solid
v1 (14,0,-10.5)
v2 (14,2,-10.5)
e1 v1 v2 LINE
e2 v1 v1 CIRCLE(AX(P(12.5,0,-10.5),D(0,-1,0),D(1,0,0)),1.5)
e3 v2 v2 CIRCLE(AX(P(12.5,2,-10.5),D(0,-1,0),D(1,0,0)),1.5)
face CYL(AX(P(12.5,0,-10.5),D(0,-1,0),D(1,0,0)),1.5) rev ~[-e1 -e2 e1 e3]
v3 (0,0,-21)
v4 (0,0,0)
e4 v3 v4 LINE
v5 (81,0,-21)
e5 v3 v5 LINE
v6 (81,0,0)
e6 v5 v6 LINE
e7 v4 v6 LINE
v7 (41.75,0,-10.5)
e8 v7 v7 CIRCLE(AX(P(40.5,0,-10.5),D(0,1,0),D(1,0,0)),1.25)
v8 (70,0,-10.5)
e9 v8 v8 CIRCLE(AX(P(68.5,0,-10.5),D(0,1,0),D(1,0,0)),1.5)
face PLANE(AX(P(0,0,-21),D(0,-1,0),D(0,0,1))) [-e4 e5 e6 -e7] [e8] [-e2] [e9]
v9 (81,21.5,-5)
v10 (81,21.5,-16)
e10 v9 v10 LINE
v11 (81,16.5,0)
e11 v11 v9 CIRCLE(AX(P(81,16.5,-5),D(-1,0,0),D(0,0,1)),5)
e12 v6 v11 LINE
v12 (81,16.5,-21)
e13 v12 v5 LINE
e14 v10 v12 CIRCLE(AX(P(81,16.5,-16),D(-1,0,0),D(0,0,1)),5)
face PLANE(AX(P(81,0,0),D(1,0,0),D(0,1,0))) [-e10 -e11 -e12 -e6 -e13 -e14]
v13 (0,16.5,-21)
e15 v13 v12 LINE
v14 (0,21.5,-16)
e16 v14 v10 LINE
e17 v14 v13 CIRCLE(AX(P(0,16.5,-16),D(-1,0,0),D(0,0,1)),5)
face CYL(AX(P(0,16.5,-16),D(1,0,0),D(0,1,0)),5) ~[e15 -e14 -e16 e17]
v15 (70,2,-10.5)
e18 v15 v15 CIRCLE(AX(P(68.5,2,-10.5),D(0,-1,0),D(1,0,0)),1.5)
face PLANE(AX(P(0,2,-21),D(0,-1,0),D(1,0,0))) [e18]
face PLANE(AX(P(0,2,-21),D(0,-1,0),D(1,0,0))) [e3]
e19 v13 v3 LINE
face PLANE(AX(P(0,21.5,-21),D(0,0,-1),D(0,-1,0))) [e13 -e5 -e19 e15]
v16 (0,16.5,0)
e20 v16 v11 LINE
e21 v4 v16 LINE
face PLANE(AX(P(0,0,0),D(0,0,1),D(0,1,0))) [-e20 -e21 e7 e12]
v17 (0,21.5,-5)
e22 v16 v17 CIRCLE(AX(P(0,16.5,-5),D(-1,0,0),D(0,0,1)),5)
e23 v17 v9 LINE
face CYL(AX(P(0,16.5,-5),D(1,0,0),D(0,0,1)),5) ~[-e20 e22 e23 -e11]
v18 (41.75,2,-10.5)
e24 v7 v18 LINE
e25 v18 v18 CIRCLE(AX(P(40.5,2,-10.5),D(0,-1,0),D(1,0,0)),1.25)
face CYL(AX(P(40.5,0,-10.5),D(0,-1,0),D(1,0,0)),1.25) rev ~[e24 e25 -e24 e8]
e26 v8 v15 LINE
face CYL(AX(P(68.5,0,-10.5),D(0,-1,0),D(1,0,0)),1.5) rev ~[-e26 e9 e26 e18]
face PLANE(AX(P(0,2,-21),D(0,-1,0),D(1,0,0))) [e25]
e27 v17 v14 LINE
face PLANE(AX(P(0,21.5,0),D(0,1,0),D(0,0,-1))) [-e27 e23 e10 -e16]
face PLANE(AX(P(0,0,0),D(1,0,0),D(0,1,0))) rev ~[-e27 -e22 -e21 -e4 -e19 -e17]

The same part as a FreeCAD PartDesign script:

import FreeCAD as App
import Part
import Sketcher


def edges_at(feature, points):
    """Names of the edges that pass closest to the given points."""
    edges = feature.Shape.Edges
    near = lambda p: min(range(len(edges)), key=lambda i: edges[i].distToShape(Part.Vertex(*p))[0])
    return sorted({f"Edge{near(p) + 1}" for p in points})


def add_polygon(sketch, points):
    """Adds a closed chain of lines whose ends are joined by coincident constraints."""
    first, n = sketch.GeometryCount, len(points)
    for a, b in zip(points, points[1:] + points[:1]):
        sketch.addGeometry(Part.LineSegment(App.Vector(*a, 0), App.Vector(*b, 0)), False)
    for i in range(n):
        sketch.addConstraint(Sketcher.Constraint("Coincident", first + i, 2, first + (i + 1) % n, 1))

doc = App.newDocument("Part")
params = doc.addObject("Spreadsheet::Sheet", "Params")
for row, (alias, value) in enumerate([
    ("sketch1_height", "21 mm"),
    ("sketch1_width", "21.5 mm"),
    ("pad1_length", "81 mm"),
    ("fillet_radius", "5 mm"),
    ("sketch2_diameter", "3 mm"),
    ("sketch2_diameter2", "2.5 mm"),
    ("pocket1_length", "2 mm"),
], start=1):
    params.set(f"A{row}", alias)
    params.set(f"B{row}", "=" + value)
    params.setAlias(f"B{row}", alias)

body = doc.addObject("PartDesign::Body", "Body")

sketch1 = doc.addObject("Sketcher::SketchObject", "Sketch")
body.addObject(sketch1)
sketch1.AttachmentSupport = (doc.YZ_Plane, [""])
sketch1.MapMode = "FlatFace"
add_polygon(sketch1, [(21.5, 0), (0, 0), (0, -21), (21.5, -21)])
sketch1.addConstraint([
    Sketcher.Constraint("Horizontal", 0),
    Sketcher.Constraint("Vertical", 1),
    Sketcher.Constraint("Horizontal", 2),
    Sketcher.Constraint("Vertical", 3),
    Sketcher.Constraint("Coincident", 0, 2, -1, 1),
    Sketcher.Constraint("DistanceY", 1, 2, 1, 1, 21.0),
    Sketcher.Constraint("DistanceX", 0, 2, 0, 1, 21.5),
])
sketch1.setExpression("Constraints[9]", "Params.sketch1_height")
sketch1.setExpression("Constraints[10]", "Params.sketch1_width")
pad1 = doc.addObject("PartDesign::Pad", "Pad")
body.addObject(pad1)
pad1.Profile = sketch1
pad1.setExpression("Length", "Params.pad1_length")
doc.recompute()

fillet = doc.addObject("PartDesign::Fillet", "Fillet")
body.addObject(fillet)
fillet.Base = (pad1, edges_at(pad1, [(40.5, 21.5, 0), (40.5, 21.5, -21)]))
fillet.setExpression("Radius", "Params.fillet_radius")

sketch2 = doc.addObject("Sketcher::SketchObject", "Sketch001")
body.addObject(sketch2)
sketch2.AttachmentSupport = (doc.XZ_Plane, [""])
sketch2.MapMode = "FlatFace"
sketch2.addGeometry([
    Part.Circle(App.Vector(40.5, -10.5, 0), App.Vector(0, 0, 1), 1.25),
    Part.Circle(App.Vector(12.5, -10.5, 0), App.Vector(0, 0, 1), 1.5),
    Part.Circle(App.Vector(68.5, -10.5, 0), App.Vector(0, 0, 1), 1.5),
], False)
sketch2.addConstraint([
    Sketcher.Constraint("Equal", 1, 2),
    Sketcher.Constraint("Horizontal", 0, 3, 1, 3),
    Sketcher.Constraint("Horizontal", 1, 3, 2, 3),
    Sketcher.Constraint("Diameter", 1, 3.0),
    Sketcher.Constraint("Diameter", 0, 2.5),
    Sketcher.Constraint("DistanceX", 1, 3, 0, 3, 28.0),
    Sketcher.Constraint("DistanceX", 0, 3, 2, 3, 28.0),
    Sketcher.Constraint("DistanceY", 0, 3, -1, 1, 10.5),
    Sketcher.Constraint("DistanceX", -1, 1, 0, 3, 40.5),
])
sketch2.setExpression("Constraints[3]", "Params.sketch2_diameter")
sketch2.setExpression("Constraints[4]", "Params.sketch2_diameter2")
pocket1 = doc.addObject("PartDesign::Pocket", "Pocket")
body.addObject(pocket1)
pocket1.Profile = sketch2
pocket1.setExpression("Length", "Params.pocket1_length")

doc.recompute()
